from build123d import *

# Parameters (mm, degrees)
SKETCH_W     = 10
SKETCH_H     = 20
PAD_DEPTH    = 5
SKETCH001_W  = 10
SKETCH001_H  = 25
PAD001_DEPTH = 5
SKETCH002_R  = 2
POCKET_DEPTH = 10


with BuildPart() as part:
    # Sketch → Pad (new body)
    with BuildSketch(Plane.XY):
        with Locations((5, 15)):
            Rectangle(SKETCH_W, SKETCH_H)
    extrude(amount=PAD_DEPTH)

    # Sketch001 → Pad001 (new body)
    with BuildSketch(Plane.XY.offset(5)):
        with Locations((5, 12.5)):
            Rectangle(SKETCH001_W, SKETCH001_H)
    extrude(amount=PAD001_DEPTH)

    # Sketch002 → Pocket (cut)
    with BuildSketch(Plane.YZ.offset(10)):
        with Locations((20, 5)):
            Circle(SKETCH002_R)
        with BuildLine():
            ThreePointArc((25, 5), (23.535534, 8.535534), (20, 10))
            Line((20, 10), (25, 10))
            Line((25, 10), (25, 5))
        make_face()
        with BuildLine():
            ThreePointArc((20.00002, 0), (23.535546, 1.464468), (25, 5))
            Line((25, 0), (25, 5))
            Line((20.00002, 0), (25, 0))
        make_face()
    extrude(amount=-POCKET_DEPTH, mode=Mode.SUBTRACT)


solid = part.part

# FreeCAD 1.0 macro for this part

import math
import FreeCAD as App
import Part
import Sketcher

V = App.Vector

doc = App.newDocument("Part")
body = doc.addObject("PartDesign::Body", "Body")

# Sketch on XY plane
sketch1 = doc.addObject("Sketcher::SketchObject", "Sketch")
body.addObject(sketch1)
sketch1.AttachmentSupport = (doc.XY_Plane, [""])
sketch1.MapMode = "FlatFace"
sketch1.addGeometry([
    Part.LineSegment(V(0, 25, 0), V(0, 5, 0)),
    Part.LineSegment(V(0, 5, 0), V(10, 5, 0)),
    Part.LineSegment(V(10, 5, 0), V(10, 25, 0)),
    Part.LineSegment(V(10, 25, 0), V(0, 25, 0)),
], False)
sketch1.addConstraint([
    Sketcher.Constraint("Coincident", 0, 2, 1, 1),
    Sketcher.Constraint("Coincident", 1, 2, 2, 1),
    Sketcher.Constraint("Coincident", 2, 2, 3, 1),
    Sketcher.Constraint("Coincident", 3, 2, 0, 1),
    Sketcher.Constraint("Vertical", 0),
    Sketcher.Constraint("Horizontal", 1),
    Sketcher.Constraint("Vertical", 2),
    Sketcher.Constraint("Horizontal", 3),
    Sketcher.Constraint("PointOnObject", 0, 2, -2),
    Sketcher.Constraint("DistanceX", 1, 1, 1, 2, 10.0),
    Sketcher.Constraint("DistanceY", 0, 2, 0, 1, 20.0),
    Sketcher.Constraint("DistanceY", -1, 1, 0, 2, 5.0),
])
pad1 = doc.addObject("PartDesign::Pad", "Pad")
body.addObject(pad1)
pad1.Profile = sketch1
pad1.Length = 5

# Sketch on XY plane
sketch2 = doc.addObject("Sketcher::SketchObject", "Sketch001")
body.addObject(sketch2)
sketch2.AttachmentSupport = (doc.XY_Plane, [""])
sketch2.MapMode = "FlatFace"
sketch2.AttachmentOffset = App.Placement(V(0, 0, 5), App.Rotation())
sketch2.addGeometry([
    Part.LineSegment(V(0, 25, 0), V(0, 0, 0)),
    Part.LineSegment(V(0, 0, 0), V(10, 0, 0)),
    Part.LineSegment(V(10, 0, 0), V(10, 25, 0)),
    Part.LineSegment(V(10, 25, 0), V(0, 25, 0)),
], False)
sketch2.addConstraint([
    Sketcher.Constraint("Coincident", 0, 2, 1, 1),
    Sketcher.Constraint("Coincident", 1, 2, 2, 1),
    Sketcher.Constraint("Coincident", 2, 2, 3, 1),
    Sketcher.Constraint("Coincident", 3, 2, 0, 1),
    Sketcher.Constraint("Vertical", 0),
    Sketcher.Constraint("Horizontal", 1),
    Sketcher.Constraint("Vertical", 2),
    Sketcher.Constraint("Horizontal", 3),
    Sketcher.Constraint("Coincident", 0, 2, -1, 1),
    Sketcher.Constraint("DistanceX", 1, 1, 1, 2, 10.0),
    Sketcher.Constraint("DistanceY", 0, 2, 0, 1, 25.0),
])
pad2 = doc.addObject("PartDesign::Pad", "Pad001")
body.addObject(pad2)
pad2.Profile = sketch2
pad2.Length = 5

# Sketch on YZ plane
sketch3 = doc.addObject("Sketcher::SketchObject", "Sketch002")
body.addObject(sketch3)
sketch3.AttachmentSupport = (doc.YZ_Plane, [""])
sketch3.MapMode = "FlatFace"
sketch3.AttachmentOffset = App.Placement(V(0, 0, 10), App.Rotation())
sketch3.addGeometry([
    Part.Circle(V(20, 5, 0), V(0, 0, 1), 2),  # 0
    Part.ArcOfCircle(Part.Circle(V(20, 5, 0), V(0, 0, 1), 5), math.radians(0), math.radians(90)),  # 1
    Part.LineSegment(V(25, 5, 0), V(25, 10, 0)),  # 2
    Part.LineSegment(V(25, 10, 0), V(20, 10, 0)),  # 3
    Part.ArcOfCircle(Part.Circle(V(20, 5, 0), V(0, 0, 1), 5), math.radians(-90), math.radians(0)),  # 4
    Part.LineSegment(V(20, 0, 0), V(25, 0, 0)),  # 5
    Part.LineSegment(V(25, 0, 0), V(25, 5, 0)),  # 6
], False)
sketch3.addConstraint([
    Sketcher.Constraint("Tangent", 1, 1, 2, 1),
    Sketcher.Constraint("Coincident", 2, 2, 3, 1),
    Sketcher.Constraint("Tangent", 3, 2, 1, 2),
    Sketcher.Constraint("Tangent", 4, 1, 5, 1),
    Sketcher.Constraint("Coincident", 5, 2, 6, 1),
    Sketcher.Constraint("Coincident", 6, 2, 4, 2),
    Sketcher.Constraint("Vertical", 2),
    Sketcher.Constraint("Horizontal", 3),
    Sketcher.Constraint("Horizontal", 5),
    Sketcher.Constraint("Vertical", 6),
    Sketcher.Constraint("Coincident", 1, 3, 0, 3),
    Sketcher.Constraint("Coincident", 6, 2, 1, 1),
    Sketcher.Constraint("PointOnObject", 4, 1, -1),
    Sketcher.Constraint("Equal", 2, 6),
    Sketcher.Constraint("Diameter", 0, 4.0),
    Sketcher.Constraint("Radius", 1, 5.0),
    Sketcher.Constraint("DistanceX", -1, 1, 0, 3, 20.0),
    Sketcher.Constraint("Radius", 4, 4.999983),
])
pocket1 = doc.addObject("PartDesign::Pocket", "Pocket")
body.addObject(pocket1)
pocket1.Profile = sketch3
pocket1.Length = 10

doc.recompute()
